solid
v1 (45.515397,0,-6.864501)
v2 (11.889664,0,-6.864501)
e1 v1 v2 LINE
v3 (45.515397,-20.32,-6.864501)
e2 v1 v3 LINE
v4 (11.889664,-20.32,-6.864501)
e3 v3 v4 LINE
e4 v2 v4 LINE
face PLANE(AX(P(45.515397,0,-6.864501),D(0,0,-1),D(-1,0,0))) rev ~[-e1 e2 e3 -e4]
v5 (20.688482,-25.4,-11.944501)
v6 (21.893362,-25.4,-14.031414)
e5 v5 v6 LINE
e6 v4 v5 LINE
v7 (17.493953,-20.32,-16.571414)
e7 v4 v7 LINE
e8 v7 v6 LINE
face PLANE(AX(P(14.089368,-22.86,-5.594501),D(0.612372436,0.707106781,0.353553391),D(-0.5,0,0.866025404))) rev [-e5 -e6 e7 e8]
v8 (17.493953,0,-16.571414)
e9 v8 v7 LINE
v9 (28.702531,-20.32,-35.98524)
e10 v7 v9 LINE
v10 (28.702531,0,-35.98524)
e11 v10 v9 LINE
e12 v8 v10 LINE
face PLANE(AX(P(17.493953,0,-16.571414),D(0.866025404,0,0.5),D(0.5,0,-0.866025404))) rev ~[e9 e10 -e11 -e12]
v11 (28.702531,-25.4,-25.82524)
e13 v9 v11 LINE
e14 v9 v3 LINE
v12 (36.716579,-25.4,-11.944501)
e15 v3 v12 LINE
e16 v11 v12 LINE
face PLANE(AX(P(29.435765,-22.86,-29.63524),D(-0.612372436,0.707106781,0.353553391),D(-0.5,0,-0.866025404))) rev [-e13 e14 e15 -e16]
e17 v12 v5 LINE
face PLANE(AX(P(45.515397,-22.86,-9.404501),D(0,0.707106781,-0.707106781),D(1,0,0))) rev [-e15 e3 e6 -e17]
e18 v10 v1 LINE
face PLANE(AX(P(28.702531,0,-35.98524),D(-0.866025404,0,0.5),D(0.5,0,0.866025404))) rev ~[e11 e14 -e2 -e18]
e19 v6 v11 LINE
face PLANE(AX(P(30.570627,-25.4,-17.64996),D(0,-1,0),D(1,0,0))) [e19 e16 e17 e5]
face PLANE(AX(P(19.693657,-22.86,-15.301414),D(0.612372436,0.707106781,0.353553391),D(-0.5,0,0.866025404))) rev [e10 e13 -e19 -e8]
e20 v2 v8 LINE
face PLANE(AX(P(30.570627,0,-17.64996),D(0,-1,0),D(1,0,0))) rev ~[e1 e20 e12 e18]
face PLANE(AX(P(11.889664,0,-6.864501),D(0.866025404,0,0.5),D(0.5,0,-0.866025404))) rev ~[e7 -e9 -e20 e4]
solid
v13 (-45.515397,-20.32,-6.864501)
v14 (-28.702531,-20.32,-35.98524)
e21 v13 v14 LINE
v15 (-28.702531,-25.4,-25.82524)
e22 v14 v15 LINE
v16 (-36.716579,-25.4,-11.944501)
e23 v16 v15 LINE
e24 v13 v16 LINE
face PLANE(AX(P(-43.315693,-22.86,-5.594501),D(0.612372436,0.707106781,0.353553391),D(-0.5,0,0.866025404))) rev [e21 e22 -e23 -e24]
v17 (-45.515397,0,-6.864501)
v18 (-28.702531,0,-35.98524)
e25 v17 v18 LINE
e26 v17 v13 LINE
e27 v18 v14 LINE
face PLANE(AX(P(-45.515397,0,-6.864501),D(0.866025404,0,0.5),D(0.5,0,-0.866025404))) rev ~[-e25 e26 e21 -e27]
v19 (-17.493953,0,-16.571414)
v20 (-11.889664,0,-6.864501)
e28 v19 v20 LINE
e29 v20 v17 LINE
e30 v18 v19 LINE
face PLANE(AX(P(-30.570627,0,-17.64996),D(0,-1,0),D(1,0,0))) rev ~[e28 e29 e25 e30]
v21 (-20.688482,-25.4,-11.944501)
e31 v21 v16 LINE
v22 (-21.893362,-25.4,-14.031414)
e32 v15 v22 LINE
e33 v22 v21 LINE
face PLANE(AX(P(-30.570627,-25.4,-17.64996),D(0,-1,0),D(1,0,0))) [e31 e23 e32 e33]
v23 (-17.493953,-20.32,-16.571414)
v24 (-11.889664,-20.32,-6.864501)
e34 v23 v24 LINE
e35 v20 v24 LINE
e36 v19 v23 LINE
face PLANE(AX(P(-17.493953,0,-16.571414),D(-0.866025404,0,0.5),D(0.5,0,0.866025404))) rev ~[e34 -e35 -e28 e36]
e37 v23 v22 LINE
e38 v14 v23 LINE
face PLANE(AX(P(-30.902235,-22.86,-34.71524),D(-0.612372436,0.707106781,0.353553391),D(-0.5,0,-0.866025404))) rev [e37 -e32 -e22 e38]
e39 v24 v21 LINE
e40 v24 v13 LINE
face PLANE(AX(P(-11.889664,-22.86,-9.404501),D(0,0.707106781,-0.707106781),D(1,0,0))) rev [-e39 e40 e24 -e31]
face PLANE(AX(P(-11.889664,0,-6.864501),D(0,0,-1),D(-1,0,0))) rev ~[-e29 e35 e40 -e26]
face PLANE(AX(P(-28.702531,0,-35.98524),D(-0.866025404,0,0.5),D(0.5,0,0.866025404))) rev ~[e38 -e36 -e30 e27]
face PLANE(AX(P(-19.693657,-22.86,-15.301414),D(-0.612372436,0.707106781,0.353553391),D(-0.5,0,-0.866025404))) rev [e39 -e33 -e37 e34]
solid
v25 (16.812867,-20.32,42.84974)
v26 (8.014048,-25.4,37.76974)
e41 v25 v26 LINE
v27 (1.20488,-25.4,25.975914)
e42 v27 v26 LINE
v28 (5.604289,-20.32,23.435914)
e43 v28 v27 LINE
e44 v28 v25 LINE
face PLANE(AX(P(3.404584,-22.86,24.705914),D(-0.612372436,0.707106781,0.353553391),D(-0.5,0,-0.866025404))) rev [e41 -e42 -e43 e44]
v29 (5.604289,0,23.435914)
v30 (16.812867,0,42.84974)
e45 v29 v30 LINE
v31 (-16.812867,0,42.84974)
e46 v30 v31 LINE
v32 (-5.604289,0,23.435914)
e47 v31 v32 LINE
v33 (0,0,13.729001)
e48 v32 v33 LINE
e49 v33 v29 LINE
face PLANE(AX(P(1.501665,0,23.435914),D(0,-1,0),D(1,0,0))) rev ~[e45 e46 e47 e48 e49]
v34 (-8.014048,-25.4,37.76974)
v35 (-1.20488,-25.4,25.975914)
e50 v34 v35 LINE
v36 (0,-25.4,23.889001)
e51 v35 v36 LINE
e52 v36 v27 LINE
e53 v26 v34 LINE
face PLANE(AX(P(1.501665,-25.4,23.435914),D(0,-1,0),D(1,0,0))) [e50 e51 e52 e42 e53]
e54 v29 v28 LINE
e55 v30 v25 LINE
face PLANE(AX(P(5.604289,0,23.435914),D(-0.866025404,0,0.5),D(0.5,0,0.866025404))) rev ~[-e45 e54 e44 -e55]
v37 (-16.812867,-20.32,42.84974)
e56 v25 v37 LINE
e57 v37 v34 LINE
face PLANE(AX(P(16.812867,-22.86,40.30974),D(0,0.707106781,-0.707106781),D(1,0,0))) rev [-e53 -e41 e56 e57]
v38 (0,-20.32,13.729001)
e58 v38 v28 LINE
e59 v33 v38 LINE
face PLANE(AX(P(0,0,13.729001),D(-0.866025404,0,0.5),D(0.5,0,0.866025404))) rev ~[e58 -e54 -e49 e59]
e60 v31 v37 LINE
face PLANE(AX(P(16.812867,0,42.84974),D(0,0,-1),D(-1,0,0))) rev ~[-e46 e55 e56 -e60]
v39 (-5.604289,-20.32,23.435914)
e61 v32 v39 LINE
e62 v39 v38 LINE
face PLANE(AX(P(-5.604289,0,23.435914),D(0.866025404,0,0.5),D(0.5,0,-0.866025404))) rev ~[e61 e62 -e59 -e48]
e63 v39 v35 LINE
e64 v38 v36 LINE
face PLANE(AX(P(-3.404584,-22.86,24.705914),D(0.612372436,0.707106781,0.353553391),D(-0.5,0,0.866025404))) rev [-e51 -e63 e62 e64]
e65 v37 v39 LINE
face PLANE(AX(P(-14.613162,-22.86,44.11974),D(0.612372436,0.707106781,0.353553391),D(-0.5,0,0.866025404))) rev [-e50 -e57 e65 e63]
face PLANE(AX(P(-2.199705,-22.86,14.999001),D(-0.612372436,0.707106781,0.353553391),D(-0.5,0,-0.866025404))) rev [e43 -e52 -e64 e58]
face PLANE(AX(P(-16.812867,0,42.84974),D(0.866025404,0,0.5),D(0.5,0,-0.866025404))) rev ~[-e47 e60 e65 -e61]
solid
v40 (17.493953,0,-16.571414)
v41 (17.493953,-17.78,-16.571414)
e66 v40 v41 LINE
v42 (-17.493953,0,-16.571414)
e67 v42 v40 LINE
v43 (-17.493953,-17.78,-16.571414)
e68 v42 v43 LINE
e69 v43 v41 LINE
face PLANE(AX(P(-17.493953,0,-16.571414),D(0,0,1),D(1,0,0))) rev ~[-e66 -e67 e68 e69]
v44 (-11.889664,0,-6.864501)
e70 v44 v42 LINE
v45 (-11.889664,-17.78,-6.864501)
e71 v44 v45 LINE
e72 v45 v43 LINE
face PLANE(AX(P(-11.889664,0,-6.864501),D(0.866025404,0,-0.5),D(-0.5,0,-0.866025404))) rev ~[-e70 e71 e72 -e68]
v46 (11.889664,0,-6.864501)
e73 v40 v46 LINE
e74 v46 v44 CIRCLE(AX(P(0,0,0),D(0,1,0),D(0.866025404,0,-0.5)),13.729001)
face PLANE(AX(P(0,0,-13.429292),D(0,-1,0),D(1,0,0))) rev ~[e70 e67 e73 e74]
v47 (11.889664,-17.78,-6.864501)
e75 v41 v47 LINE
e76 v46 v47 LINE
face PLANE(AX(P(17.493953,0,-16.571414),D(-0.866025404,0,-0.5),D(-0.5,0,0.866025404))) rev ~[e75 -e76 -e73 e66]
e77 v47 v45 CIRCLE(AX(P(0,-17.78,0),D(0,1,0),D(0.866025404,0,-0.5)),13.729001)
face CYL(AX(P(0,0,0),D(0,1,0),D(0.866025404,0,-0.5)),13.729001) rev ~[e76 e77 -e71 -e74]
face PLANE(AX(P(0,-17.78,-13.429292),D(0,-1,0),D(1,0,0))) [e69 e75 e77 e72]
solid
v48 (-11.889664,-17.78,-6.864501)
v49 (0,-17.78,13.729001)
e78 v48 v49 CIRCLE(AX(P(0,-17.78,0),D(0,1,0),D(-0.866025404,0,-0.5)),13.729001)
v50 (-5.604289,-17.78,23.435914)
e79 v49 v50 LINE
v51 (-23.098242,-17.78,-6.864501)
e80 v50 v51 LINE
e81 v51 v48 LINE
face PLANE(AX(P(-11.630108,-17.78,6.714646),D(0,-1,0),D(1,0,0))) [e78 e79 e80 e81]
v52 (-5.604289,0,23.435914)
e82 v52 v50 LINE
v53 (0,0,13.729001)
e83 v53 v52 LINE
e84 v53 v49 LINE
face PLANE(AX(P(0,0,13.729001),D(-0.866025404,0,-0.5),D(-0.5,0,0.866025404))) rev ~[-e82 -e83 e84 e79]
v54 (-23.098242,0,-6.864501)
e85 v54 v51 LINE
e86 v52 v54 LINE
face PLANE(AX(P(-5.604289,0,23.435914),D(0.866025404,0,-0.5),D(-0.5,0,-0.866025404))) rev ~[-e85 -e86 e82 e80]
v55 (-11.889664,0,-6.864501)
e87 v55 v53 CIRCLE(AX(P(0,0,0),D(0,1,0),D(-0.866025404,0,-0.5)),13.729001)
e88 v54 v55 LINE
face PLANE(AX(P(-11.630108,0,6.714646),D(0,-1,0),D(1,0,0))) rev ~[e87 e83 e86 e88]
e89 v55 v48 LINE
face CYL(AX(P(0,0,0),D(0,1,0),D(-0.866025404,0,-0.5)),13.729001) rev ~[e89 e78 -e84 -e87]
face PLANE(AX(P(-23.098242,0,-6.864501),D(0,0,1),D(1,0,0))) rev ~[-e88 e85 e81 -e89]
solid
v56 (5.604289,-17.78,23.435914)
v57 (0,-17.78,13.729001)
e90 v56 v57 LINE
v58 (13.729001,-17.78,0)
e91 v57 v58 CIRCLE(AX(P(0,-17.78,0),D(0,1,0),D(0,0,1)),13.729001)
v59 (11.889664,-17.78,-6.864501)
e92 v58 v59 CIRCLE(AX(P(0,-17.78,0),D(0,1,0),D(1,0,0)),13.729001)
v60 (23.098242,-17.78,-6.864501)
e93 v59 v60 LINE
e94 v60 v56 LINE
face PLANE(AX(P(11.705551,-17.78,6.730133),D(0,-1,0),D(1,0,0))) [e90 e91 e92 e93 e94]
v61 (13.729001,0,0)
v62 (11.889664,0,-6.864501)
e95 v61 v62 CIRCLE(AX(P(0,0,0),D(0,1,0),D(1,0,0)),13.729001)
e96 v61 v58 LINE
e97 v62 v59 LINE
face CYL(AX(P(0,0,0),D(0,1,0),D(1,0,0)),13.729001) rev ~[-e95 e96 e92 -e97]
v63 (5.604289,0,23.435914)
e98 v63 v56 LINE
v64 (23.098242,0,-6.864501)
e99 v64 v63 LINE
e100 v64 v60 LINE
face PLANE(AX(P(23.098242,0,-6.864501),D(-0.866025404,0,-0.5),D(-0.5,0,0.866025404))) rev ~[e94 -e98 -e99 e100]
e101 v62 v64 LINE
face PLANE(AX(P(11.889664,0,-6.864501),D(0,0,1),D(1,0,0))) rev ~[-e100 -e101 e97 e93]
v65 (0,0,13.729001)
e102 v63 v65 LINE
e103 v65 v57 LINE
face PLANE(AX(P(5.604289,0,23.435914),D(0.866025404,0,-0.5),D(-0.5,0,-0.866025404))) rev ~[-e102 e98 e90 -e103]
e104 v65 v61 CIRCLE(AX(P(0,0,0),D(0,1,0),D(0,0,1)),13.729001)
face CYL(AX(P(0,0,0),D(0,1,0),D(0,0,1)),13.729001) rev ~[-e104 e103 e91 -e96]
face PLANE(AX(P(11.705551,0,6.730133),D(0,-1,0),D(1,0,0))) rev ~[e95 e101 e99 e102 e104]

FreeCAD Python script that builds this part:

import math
import FreeCAD as App
import Part
import Sketcher
from FreeCAD import Vector
Q = App.Units.Quantity


def edges_at(feature, points):
    """Names of the edges that pass closest to the given points."""
    edges = feature.Shape.Edges
    near = lambda p: min(range(len(edges)), key=lambda i: edges[i].distToShape(Part.Vertex(*p))[0])
    return sorted({f"Edge{near(p) + 1}" for p in points})


def add_polygon(sketch, points):
    """Adds a closed chain of lines whose ends are joined by coincident constraints."""
    first, n = sketch.GeometryCount, len(points)
    for a, b in zip(points, points[1:] + points[:1]):
        sketch.addGeometry(Part.LineSegment(App.Vector(*a, 0), App.Vector(*b, 0)), False)
    for i in range(n):
        sketch.addConstraint(Sketcher.Constraint("Coincident", first + i, 2, first + (i + 1) % n, 1))

doc = App.newDocument("Part")
body = doc.addObject("PartDesign::Body", "Body")

sketch1 = body.newObject("Sketcher::SketchObject", "Sketch")
sketch1.AttachmentSupport = (doc.getObject("XZ_Plane"), [""])
sketch1.MapMode = "FlatFace"
add_polygon(sketch1, [(46, -7), (12, -7), (17, -17), (29, -36)])
sketch1.addConstraint([
    Sketcher.Constraint("Horizontal", 0),
    Sketcher.Constraint("Parallel", 1, 2),
    Sketcher.Constraint("Angle", 1, Q("-60 deg")),
    Sketcher.Constraint("Angle", 3, Q("60 deg")),
    Sketcher.Constraint("DistanceY", 0, 2, -1, 1, Q("6.864501 mm")),
    Sketcher.Constraint("DistanceX", 0, 2, 0, 1, Q("33.625733 mm")),
    Sketcher.Constraint("DistanceX", -1, 1, 2, 2, Q("28.702531 mm")),
    Sketcher.Constraint("DistanceX", 0, 2, 1, 2, Q("5.604289 mm")),
])
pad1 = body.newObject("PartDesign::Pad", "Pad")
pad1.Profile = sketch1
pad1.Length = Q("1 in")
doc.recompute()

chamfer = body.newObject("PartDesign::Chamfer", "Chamfer")
chamfer.Base = (pad1, edges_at(pad1, [(28.703, -25.4, -6.865), (23.098, -25.4, -26.278)]))
chamfer.Size = Q("0.2 in")
doc.recompute()

chamfer2 = body.newObject("PartDesign::Chamfer", "Chamfer001")
chamfer2.Base = (chamfer, edges_at(chamfer, [(37.109, -25.4, -21.425)]))
chamfer2.Size = Q("0.2 in")
body2 = doc.addObject("PartDesign::Body", "Body001")

sketch2 = body2.newObject("Sketcher::SketchObject", "Sketch001")
sketch2.AttachmentSupport = (doc.getObject("XZ_Plane001"), [""])
sketch2.MapMode = "FlatFace"
add_polygon(sketch2, [(-46, -7), (-29, -36), (-17, -17), (-12, -7)])
sketch2.addConstraint([
    Sketcher.Constraint("Horizontal", 3),
    Sketcher.Constraint("Parallel", 1, 2),
    Sketcher.Constraint("Angle", 0, Q("-60 deg")),
    Sketcher.Constraint("Angle", 1, Q("60 deg")),
    Sketcher.Constraint("DistanceY", 2, 2, -1, 1, Q("6.864501 mm")),
    Sketcher.Constraint("DistanceX", 3, 2, 3, 1, Q("33.625733 mm")),
    Sketcher.Constraint("DistanceX", 0, 2, -1, 1, Q("28.702531 mm")),
    Sketcher.Constraint("DistanceX", 1, 2, 2, 2, Q("5.604289 mm")),
])
pad2 = body2.newObject("PartDesign::Pad", "Pad001")
pad2.Profile = sketch2
pad2.Length = Q("1 in")
doc.recompute()

chamfer3 = body2.newObject("PartDesign::Chamfer", "Chamfer002")
chamfer3.Base = (pad2, edges_at(pad2, [(-23.098, -25.4, -26.278), (-28.703, -25.4, -6.865), (-37.109, -25.4, -21.425)]))
chamfer3.Size = Q("0.2 in")
body3 = doc.addObject("PartDesign::Body", "Body002")

sketch3 = body3.newObject("Sketcher::SketchObject", "Sketch002")
sketch3.AttachmentSupport = (doc.getObject("XZ_Plane002"), [""])
sketch3.MapMode = "FlatFace"
add_polygon(sketch3, [(-6, 23), (0, 14), (6, 23), (17, 43), (-17, 43)])
sketch3.addConstraint([
    Sketcher.Constraint("Horizontal", 3),
    Sketcher.Constraint("Symmetric", 1, 2, 4, 2, -2),
    Sketcher.Constraint("PointOnObject", 0, 2, -2),
    Sketcher.Constraint("Parallel", 1, 2),
    Sketcher.Constraint("Parallel", 0, 4),
    Sketcher.Constraint("Angle", 0, Q("-60 deg")),
    Sketcher.Constraint("DistanceY", -1, 1, 0, 2, Q("13.729001 mm")),
    Sketcher.Constraint("DistanceX", 3, 2, 3, 1, Q("33.625733 mm")),
    Sketcher.Constraint("DistanceX", -1, 1, 1, 2, Q("5.604289 mm")),
])
pad3 = body3.newObject("PartDesign::Pad", "Pad002")
pad3.Profile = sketch3
pad3.Length = Q("1 in")
doc.recompute()

chamfer4 = body3.newObject("PartDesign::Chamfer", "Chamfer003")
chamfer4.Base = (pad3, edges_at(pad3, [(-11.209, -25.4, 33.143), (11.209, -25.4, 33.143), (0, -25.4, 42.85)]))
chamfer4.Size = Q("0.2 in")
body4 = doc.addObject("PartDesign::Body", "Body003")

sketch4 = body4.newObject("Sketcher::SketchObject", "Sketch003")
sketch4.AttachmentSupport = (doc.getObject("XZ_Plane003"), [""])
sketch4.MapMode = "FlatFace"
sketch4.addGeometry([
    Part.LineSegment(Vector(23, -7, 0), Vector(6, 23, 0)),
    Part.LineSegment(Vector(6, 23, 0), Vector(0, 14, 0)),
    Part.ArcOfCircle(Part.Circle(Vector(0, 0, 0), Vector(0, 0, 1), 14), math.radians(0), math.radians(90)),
    Part.ArcOfCircle(Part.Circle(Vector(0, 0, 0), Vector(0, 0, 1), 14), math.radians(-30), math.radians(0)),
    Part.LineSegment(Vector(12, -7, 0), Vector(23, -7, 0)),
], False)
sketch4.addConstraint([
    Sketcher.Constraint("Coincident", 0, 2, 1, 1),
    Sketcher.Constraint("Coincident", 1, 2, 2, 2),
    Sketcher.Constraint("Tangent", 2, 1, 3, 2),
    Sketcher.Constraint("Coincident", 3, 1, 4, 1),
    Sketcher.Constraint("Coincident", 4, 2, 0, 1),
    Sketcher.Constraint("Horizontal", 4),
    Sketcher.Constraint("Coincident", 2, 3, -1, 1),
    Sketcher.Constraint("Equal", 2, 3),
    Sketcher.Constraint("PointOnObject", 1, 2, -2),
    Sketcher.Constraint("PointOnObject", 2, 1, -1),
    Sketcher.Constraint("Angle", 0, Q("120 deg")),
    Sketcher.Constraint("Angle", 1, Q("-120 deg")),
    Sketcher.Constraint("Radius", 2, Q("13.729001 mm")),
    Sketcher.Constraint("DistanceY", 3, 1, -1, 1, Q("6.864501 mm")),
    Sketcher.Constraint("DistanceX", 4, 1, 4, 2, Q("11.208578 mm")),
])
pad4 = body4.newObject("PartDesign::Pad", "Pad003")
pad4.Profile = sketch4
pad4.Length = Q("0.7 in")
body5 = doc.addObject("PartDesign::Body", "Body004")

sketch5 = body5.newObject("Sketcher::SketchObject", "Sketch004")
sketch5.AttachmentSupport = (doc.getObject("XZ_Plane004"), [""])
sketch5.MapMode = "FlatFace"
sketch5.addGeometry([
    Part.ArcOfCircle(Part.Circle(Vector(0, 0, 0), Vector(0, 0, 1), 14), math.radians(-150), math.radians(-30)),
    Part.LineSegment(Vector(-12, -7, 0), Vector(-17, -17, 0)),
    Part.LineSegment(Vector(-17, -17, 0), Vector(17, -17, 0)),
    Part.LineSegment(Vector(17, -17, 0), Vector(12, -7, 0)),
], False)
sketch5.addConstraint([
    Sketcher.Constraint("Coincident", 0, 1, 1, 1),
    Sketcher.Constraint("Coincident", 1, 2, 2, 1),
    Sketcher.Constraint("Coincident", 2, 2, 3, 1),
    Sketcher.Constraint("Coincident", 3, 2, 0, 2),
    Sketcher.Constraint("Horizontal", 2),
    Sketcher.Constraint("Coincident", 0, 3, -1, 1),
    Sketcher.Constraint("Horizontal", 0, 1, 3, 2),
    Sketcher.Constraint("Equal", 1, 3),
    Sketcher.Constraint("Angle", 1, Q("-120 deg")),
    Sketcher.Constraint("Radius", 0, Q("13.729001 mm")),
    Sketcher.Constraint("DistanceY", 0, 1, -1, 1, Q("6.864501 mm")),
    Sketcher.Constraint("DistanceX", 2, 1, 2, 2, Q("34.987906 mm")),
])
pad5 = body5.newObject("PartDesign::Pad", "Pad004")
pad5.Profile = sketch5
pad5.Length = Q("0.7 in")
body6 = doc.addObject("PartDesign::Body", "Body005")

sketch6 = body6.newObject("Sketcher::SketchObject", "Sketch005")
sketch6.AttachmentSupport = (doc.getObject("XZ_Plane005"), [""])
sketch6.MapMode = "FlatFace"
sketch6.addGeometry([
    Part.LineSegment(Vector(0, 14, 0), Vector(-6, 23, 0)),
    Part.LineSegment(Vector(-6, 23, 0), Vector(-23, -7, 0)),
    Part.LineSegment(Vector(-23, -7, 0), Vector(-12, -7, 0)),
    Part.ArcOfCircle(Part.Circle(Vector(0, 0, 0), Vector(0, 0, 1), 14), math.radians(90), math.radians(210)),
], False)
sketch6.addConstraint([
    Sketcher.Constraint("Coincident", 0, 2, 1, 1),
    Sketcher.Constraint("Coincident", 1, 2, 2, 1),
    Sketcher.Constraint("Coincident", 2, 2, 3, 2),
    Sketcher.Constraint("Coincident", 3, 1, 0, 1),
    Sketcher.Constraint("Horizontal", 2),
    Sketcher.Constraint("Coincident", 3, 3, -1, 1),
    Sketcher.Constraint("PointOnObject", 3, 1, -2),
    Sketcher.Constraint("Angle", 0, Q("120 deg")),
    Sketcher.Constraint("Angle", 1, Q("-120 deg")),
    Sketcher.Constraint("Radius", 3, Q("13.729001 mm")),
    Sketcher.Constraint("DistanceY", 1, 2, -1, 1, Q("6.864501 mm")),
    Sketcher.Constraint("DistanceX", 2, 1, 2, 2, Q("11.208578 mm")),
])
pad6 = body6.newObject("PartDesign::Pad", "Pad005")
pad6.Profile = sketch6
pad6.Length = Q("0.7 in")

doc.recompute()
